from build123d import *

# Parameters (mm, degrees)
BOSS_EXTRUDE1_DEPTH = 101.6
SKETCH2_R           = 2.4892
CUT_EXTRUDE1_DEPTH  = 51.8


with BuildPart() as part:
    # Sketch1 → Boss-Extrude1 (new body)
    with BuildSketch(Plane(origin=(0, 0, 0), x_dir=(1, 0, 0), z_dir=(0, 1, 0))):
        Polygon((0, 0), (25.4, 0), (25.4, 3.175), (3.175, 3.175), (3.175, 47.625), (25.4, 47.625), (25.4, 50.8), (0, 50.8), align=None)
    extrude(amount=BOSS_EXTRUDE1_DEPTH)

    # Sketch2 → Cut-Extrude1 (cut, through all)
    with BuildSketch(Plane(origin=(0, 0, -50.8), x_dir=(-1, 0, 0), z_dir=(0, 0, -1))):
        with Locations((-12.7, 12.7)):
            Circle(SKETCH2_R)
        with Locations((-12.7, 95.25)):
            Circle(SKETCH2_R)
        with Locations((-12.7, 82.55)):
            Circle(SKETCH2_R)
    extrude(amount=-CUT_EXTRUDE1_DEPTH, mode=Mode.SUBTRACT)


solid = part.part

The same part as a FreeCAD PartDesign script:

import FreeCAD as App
import Part
import Sketcher
from FreeCAD import Vector
Q = App.Units.Quantity


def add_polygon(sketch, points):
    """Adds a closed chain of lines whose ends are joined by coincident constraints."""
    first, n = sketch.GeometryCount, len(points)
    for a, b in zip(points, points[1:] + points[:1]):
        sketch.addGeometry(Part.LineSegment(App.Vector(*a, 0), App.Vector(*b, 0)), False)
    for i in range(n):
        sketch.addConstraint(Sketcher.Constraint("Coincident", first + i, 2, first + (i + 1) % n, 1))

doc = App.newDocument("Part")
body = doc.addObject("PartDesign::Body", "Body")

# Sketch on XZ plane
sketch1 = doc.addObject("Sketcher::SketchObject", "Sketch")
body.addObject(sketch1)
sketch1.AttachmentSupport = (doc.XZ_Plane, [""])
sketch1.MapMode = "FlatFace"
add_polygon(sketch1, [(0, 0), (25.4, 0), (25.4, -3.2), (3.2, -3.2), (3.2, -47.6), (25.4, -47.6), (25.4, -50.8), (0, -50.8)])  # lines 0-7
sketch1.addConstraint([
    Sketcher.Constraint("Horizontal", 0),
    Sketcher.Constraint("Vertical", 1),
    Sketcher.Constraint("Horizontal", 2),
    Sketcher.Constraint("Vertical", 3),
    Sketcher.Constraint("Horizontal", 4),
    Sketcher.Constraint("Vertical", 5),
    Sketcher.Constraint("Horizontal", 6),
    Sketcher.Constraint("Vertical", 7),
    Sketcher.Constraint("Coincident", 7, 2, -1, 1),
    Sketcher.Constraint("Vertical", 1, 2, 4, 2),
    Sketcher.Constraint("Equal", 1, 5),
    Sketcher.Constraint("DistanceX", 0, 1, 0, 2, Q("1 in")),
    Sketcher.Constraint("DistanceY", 7, 1, 7, 2, Q("2 in")),
    Sketcher.Constraint("DistanceY", 3, 2, 3, 1, Q("1.75 in")),
    Sketcher.Constraint("DistanceX", 2, 2, 2, 1, Q("0.875 in")),
])
pad1 = doc.addObject("PartDesign::Pad", "Pad")
body.addObject(pad1)
pad1.Profile = sketch1
pad1.Length = Q("4 in")
pad1.Reversed = True

# Sketch on XY plane
sketch2 = doc.addObject("Sketcher::SketchObject", "Sketch001")
body.addObject(sketch2)
sketch2.AttachmentSupport = (doc.XY_Plane, [""])
sketch2.MapMode = "FlatFace"
sketch2.AttachmentOffset = App.Placement(Vector(0, 0, -2 * 25.4), App.Rotation())
sketch2.addGeometry([
    Part.Circle(Vector(12.7, 12.7, 0), Vector(0, 0, 1), 2.5),
    Part.Circle(Vector(12.7, 95.2, 0), Vector(0, 0, 1), 2.5),
    Part.Circle(Vector(12.7, 82.5, 0), Vector(0, 0, 1), 2.5),
], False)
sketch2.addConstraint([
    Sketcher.Constraint("Equal", 0, 1),
    Sketcher.Constraint("Equal", 1, 2),
    Sketcher.Constraint("Vertical", 0, 3, 1, 3),
    Sketcher.Constraint("Vertical", 1, 3, 2, 3),
    Sketcher.Constraint("Diameter", 0, Q("0.196 in")),
    Sketcher.Constraint("DistanceX", -1, 1, 0, 3, Q("0.5 in")),
    Sketcher.Constraint("DistanceY", -1, 1, 0, 3, Q("0.5 in")),
    Sketcher.Constraint("DistanceY", 2, 3, 1, 3, Q("0.5 in")),
    Sketcher.Constraint("DistanceY", -1, 1, 1, 3, Q("3.75 in")),
])
pocket1 = doc.addObject("PartDesign::Pocket", "Pocket")
body.addObject(pocket1)
pocket1.Profile = sketch2
pocket1.Type = "ThroughAll"
pocket1.Reversed = True

doc.recompute()
